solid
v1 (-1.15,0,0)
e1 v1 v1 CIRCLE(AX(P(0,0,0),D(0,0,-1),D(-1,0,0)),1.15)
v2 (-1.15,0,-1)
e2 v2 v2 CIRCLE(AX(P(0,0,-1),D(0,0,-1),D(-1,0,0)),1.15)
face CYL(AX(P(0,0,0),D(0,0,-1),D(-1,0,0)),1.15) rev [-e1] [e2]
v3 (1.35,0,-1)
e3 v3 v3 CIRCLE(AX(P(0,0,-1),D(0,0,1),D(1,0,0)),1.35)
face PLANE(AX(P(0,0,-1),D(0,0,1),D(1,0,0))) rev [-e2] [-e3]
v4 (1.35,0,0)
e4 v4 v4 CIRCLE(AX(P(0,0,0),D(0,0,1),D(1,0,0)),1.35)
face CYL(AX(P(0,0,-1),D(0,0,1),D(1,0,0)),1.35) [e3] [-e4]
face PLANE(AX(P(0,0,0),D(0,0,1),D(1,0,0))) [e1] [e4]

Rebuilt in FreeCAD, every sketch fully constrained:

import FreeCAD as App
import Part
import Sketcher
from FreeCAD import Vector
Q = App.Units.Quantity

doc = App.newDocument("Part")
body = doc.addObject("PartDesign::Body", "Body")

# Sketch on XY plane
sketch1 = doc.addObject("Sketcher::SketchObject", "Sketch")
body.addObject(sketch1)
sketch1.AttachmentSupport = (doc.XY_Plane, [""])
sketch1.MapMode = "FlatFace"
sketch1.addGeometry(Part.Circle(Vector(0, 0, 0), Vector(0, 0, 1), 1.4), False)
sketch1.addConstraint([
    Sketcher.Constraint("Coincident", 0, 3, -1, 1),
    Sketcher.Constraint("Diameter", 0, Q("2.7 mm")),
])
pad1 = doc.addObject("PartDesign::Pad", "Pad")
body.addObject(pad1)
pad1.Profile = sketch1
pad1.Length = 1
pad1.Reversed = True

# Sketch on XY plane
sketch2 = doc.addObject("Sketcher::SketchObject", "Sketch001")
body.addObject(sketch2)
sketch2.AttachmentSupport = (doc.XY_Plane, [""])
sketch2.MapMode = "FlatFace"
sketch2.AttachmentOffset = App.Placement(Vector(0, 0, -1), App.Rotation())
sketch2.addGeometry(Part.Circle(Vector(0, 0, 0), Vector(0, 0, 1), 1.1), False)
sketch2.addConstraint([
    Sketcher.Constraint("Coincident", 0, 3, -1, 1),
    Sketcher.Constraint("Diameter", 0, Q("2.3 mm")),
])
pocket1 = doc.addObject("PartDesign::Pocket", "Pocket")
body.addObject(pocket1)
pocket1.Profile = sketch2
pocket1.Type = "ThroughAll"
pocket1.Reversed = True

doc.recompute()
